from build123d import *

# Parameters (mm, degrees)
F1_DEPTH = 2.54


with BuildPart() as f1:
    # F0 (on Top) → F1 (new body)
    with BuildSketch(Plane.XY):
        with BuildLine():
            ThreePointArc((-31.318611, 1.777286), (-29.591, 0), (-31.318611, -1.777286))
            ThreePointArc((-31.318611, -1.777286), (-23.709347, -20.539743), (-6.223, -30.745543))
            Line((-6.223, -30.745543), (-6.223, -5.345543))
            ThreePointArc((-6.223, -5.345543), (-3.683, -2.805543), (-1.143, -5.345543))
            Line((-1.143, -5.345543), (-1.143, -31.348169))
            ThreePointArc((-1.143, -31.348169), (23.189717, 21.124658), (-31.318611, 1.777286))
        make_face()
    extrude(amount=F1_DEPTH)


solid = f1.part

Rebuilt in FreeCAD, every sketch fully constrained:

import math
import FreeCAD as App
import Part
import Sketcher
Q = App.Units.Quantity

doc = App.newDocument("Part")
body = doc.addObject("PartDesign::Body", "Body")

sketch1 = body.newObject("Sketcher::SketchObject", "Sketch")
sketch1.AttachmentSupport = (doc.getObject("XY_Plane"), [""])
sketch1.MapMode = "FlatFace"
sketch1.addGeometry([
    Part.ArcOfCircle(Part.Circle(App.Vector(-31.4, 0, 0), App.Vector(0, 0, 1), 1.8), math.radians(-88), math.radians(88)),
    Part.ArcOfCircle(Part.Circle(App.Vector(0, 0, 0), App.Vector(0, 0, 1), 31.4), math.radians(-177), math.radians(-101)),
    Part.LineSegment(App.Vector(-6.2, -30.7, 0), App.Vector(-6.2, -5.3, 0)),
    Part.ArcOfCircle(Part.Circle(App.Vector(-3.7, -5.3, 0), App.Vector(0, 0, 1), 2.5), math.radians(0), math.radians(180)),
    Part.LineSegment(App.Vector(-1.1, -5.3, 0), App.Vector(-1.1, -31.3, 0)),
    Part.ArcOfCircle(Part.Circle(App.Vector(0, 0, 0), App.Vector(0, 0, 1), 31.4), math.radians(-92), math.radians(177)),
], False)
sketch1.addConstraint([
    Sketcher.Constraint("Coincident", 0, 1, 1, 1),
    Sketcher.Constraint("Coincident", 1, 2, 2, 1),
    Sketcher.Constraint("Tangent", 2, 2, 3, 2),
    Sketcher.Constraint("Tangent", 3, 1, 4, 1),
    Sketcher.Constraint("Coincident", 4, 2, 5, 1),
    Sketcher.Constraint("Coincident", 5, 2, 0, 2),
    Sketcher.Constraint("Vertical", 2),
    Sketcher.Constraint("Vertical", 4),
    Sketcher.Constraint("Coincident", 1, 3, -1, 1),
    Sketcher.Constraint("Coincident", 5, 3, -1, 1),
    Sketcher.Constraint("Symmetric", 0, 1, 5, 2, -1),
    Sketcher.Constraint("Radius", 3, Q("0.1 in")),
    Sketcher.Constraint("DistanceY", 2, 1, 2, 2, Q("1 in")),
    Sketcher.Constraint("Radius", 0, Q("0.07 in")),
    Sketcher.Constraint("Radius", 1, Q("1.2349999 in")),
    Sketcher.Constraint("DistanceX", 0, 3, 3, 3, Q("1.09 in")),
    Sketcher.Constraint("DistanceX", 0, 3, -1, 1, Q("1.235 in")),
])
pad1 = body.newObject("PartDesign::Pad", "Pad")
pad1.Profile = sketch1
pad1.Length = Q("0.1 in")

doc.recompute()
